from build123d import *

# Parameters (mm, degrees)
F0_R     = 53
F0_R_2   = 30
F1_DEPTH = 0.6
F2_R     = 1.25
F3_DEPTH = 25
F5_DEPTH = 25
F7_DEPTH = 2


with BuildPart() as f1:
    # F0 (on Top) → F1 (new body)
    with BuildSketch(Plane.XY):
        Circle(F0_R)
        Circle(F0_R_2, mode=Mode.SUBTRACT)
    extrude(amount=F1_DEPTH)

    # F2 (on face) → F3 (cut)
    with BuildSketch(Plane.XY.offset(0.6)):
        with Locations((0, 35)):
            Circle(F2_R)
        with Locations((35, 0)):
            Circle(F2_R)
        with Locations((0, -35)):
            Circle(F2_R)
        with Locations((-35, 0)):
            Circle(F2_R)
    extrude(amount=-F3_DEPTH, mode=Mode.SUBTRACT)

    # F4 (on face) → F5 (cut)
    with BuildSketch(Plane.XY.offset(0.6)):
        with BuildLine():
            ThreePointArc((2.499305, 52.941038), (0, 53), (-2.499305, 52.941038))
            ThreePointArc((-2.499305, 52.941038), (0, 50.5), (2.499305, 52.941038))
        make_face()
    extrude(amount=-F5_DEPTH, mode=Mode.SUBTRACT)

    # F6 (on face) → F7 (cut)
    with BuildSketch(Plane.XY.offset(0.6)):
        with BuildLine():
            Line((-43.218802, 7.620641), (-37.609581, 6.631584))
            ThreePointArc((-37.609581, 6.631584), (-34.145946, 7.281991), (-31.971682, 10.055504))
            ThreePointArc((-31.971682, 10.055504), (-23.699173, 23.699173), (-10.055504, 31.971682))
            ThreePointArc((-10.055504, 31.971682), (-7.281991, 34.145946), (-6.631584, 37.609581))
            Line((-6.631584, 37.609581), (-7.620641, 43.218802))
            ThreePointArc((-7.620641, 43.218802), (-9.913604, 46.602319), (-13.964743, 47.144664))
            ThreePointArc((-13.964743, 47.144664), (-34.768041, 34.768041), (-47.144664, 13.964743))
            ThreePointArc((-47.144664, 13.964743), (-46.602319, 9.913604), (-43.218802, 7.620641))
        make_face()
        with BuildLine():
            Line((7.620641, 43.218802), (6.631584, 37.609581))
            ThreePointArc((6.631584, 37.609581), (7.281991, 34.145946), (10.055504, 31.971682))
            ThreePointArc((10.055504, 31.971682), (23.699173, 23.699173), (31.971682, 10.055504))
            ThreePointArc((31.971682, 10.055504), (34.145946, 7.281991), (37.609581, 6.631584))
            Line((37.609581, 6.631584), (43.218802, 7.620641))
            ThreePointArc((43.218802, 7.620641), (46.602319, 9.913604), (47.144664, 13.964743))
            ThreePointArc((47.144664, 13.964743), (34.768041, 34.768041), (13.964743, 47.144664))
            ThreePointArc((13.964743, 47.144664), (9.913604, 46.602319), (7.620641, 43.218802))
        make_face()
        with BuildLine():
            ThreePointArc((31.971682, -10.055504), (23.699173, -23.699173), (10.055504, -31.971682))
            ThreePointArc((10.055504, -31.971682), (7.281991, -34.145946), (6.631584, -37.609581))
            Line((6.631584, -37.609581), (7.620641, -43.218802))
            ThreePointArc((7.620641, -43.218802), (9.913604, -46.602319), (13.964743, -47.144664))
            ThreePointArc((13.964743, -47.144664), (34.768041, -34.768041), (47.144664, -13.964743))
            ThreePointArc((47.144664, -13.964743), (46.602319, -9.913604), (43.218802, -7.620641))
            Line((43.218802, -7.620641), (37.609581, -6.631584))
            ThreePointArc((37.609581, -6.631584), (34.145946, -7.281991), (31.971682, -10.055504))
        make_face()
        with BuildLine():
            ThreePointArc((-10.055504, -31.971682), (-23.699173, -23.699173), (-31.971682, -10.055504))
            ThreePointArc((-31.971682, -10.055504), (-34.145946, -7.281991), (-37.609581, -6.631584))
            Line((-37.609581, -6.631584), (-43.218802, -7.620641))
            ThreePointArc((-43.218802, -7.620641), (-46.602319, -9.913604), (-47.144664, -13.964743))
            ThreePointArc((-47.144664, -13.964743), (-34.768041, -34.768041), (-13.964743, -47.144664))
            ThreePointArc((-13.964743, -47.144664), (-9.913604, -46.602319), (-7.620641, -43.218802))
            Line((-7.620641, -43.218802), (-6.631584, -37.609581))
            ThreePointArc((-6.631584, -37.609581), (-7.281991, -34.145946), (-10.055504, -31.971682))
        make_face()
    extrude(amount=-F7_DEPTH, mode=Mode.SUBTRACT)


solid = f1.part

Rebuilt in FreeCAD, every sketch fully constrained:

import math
import FreeCAD as App
import Part
import Sketcher

V = App.Vector
Q = App.Units.Quantity

doc = App.newDocument("Part")
params = doc.addObject("Spreadsheet::Sheet", "Params")
for row, (alias, value) in enumerate([
    ("sketch1_diameter", "106 mm"),
    ("sketch1_diameter2", "60 mm"),
    ("pad1_length", "0.6 mm"),
    ("sketch2_diameter", "2.5 mm"),
    ("pocket1_length", "25 mm"),
    ("sketch3_radius", "2.5 mm"),
    ("pocket2_length", "25 mm"),
    ("sketch4_radius", "4.999999 mm"),
    ("pocket3_length", "2 mm"),
], start=1):
    params.set(f"A{row}", alias)
    params.set(f"B{row}", "=" + value)
    params.setAlias(f"B{row}", alias)

body = doc.addObject("PartDesign::Body", "Body")

# Sketch on XY plane
sketch1 = doc.addObject("Sketcher::SketchObject", "Sketch")
body.addObject(sketch1)
sketch1.AttachmentSupport = (doc.XY_Plane, [""])
sketch1.MapMode = "FlatFace"
sketch1.addGeometry([
    Part.Circle(V(0, 0, 0), V(0, 0, 1), 53),
    Part.Circle(V(0, 0, 0), V(0, 0, 1), 30),
], False)
sketch1.addConstraint([
    Sketcher.Constraint("Coincident", 0, 3, -1, 1),
    Sketcher.Constraint("Coincident", 1, 3, -1, 1),
    Sketcher.Constraint("Diameter", 0, Q("106 mm")),
    Sketcher.Constraint("Diameter", 1, Q("60 mm")),
])
sketch1.setExpression("Constraints[2]", "Params.sketch1_diameter")
sketch1.setExpression("Constraints[3]", "Params.sketch1_diameter2")
pad1 = doc.addObject("PartDesign::Pad", "Pad")
body.addObject(pad1)
pad1.Profile = sketch1
pad1.setExpression("Length", "Params.pad1_length")

# Sketch on XY plane
sketch2 = doc.addObject("Sketcher::SketchObject", "Sketch001")
body.addObject(sketch2)
sketch2.AttachmentSupport = (doc.XY_Plane, [""])
sketch2.MapMode = "FlatFace"
sketch2.AttachmentOffset = App.Placement(V(0, 0, 0.6), App.Rotation())
sketch2.addGeometry([
    Part.Circle(V(0, 35, 0), V(0, 0, 1), 1.2),
    Part.Circle(V(35, 0, 0), V(0, 0, 1), 1.2),
    Part.Circle(V(0, -35, 0), V(0, 0, 1), 1.2),
    Part.Circle(V(-35, 0, 0), V(0, 0, 1), 1.2),
], False)
sketch2.addConstraint([
    Sketcher.Constraint("Equal", 0, 1),
    Sketcher.Constraint("Equal", 1, 2),
    Sketcher.Constraint("Equal", 2, 3),
    Sketcher.Constraint("Symmetric", 0, 3, 2, 3, -1, 1),
    Sketcher.Constraint("Symmetric", 1, 3, 3, 3, -1, 1),
    Sketcher.Constraint("PointOnObject", 0, 3, -2),
    Sketcher.Constraint("PointOnObject", 1, 3, -1),
    Sketcher.Constraint("Diameter", 0, Q("2.5 mm")),
    Sketcher.Constraint("DistanceY", -1, 1, 0, 3, Q("35 mm")),
    Sketcher.Constraint("DistanceX", -1, 1, 1, 3, Q("35 mm")),
])
sketch2.setExpression("Constraints[7]", "Params.sketch2_diameter")
pocket1 = doc.addObject("PartDesign::Pocket", "Pocket")
body.addObject(pocket1)
pocket1.Profile = sketch2
pocket1.setExpression("Length", "Params.pocket1_length")

# Sketch on XY plane
sketch3 = doc.addObject("Sketcher::SketchObject", "Sketch002")
body.addObject(sketch3)
sketch3.AttachmentSupport = (doc.XY_Plane, [""])
sketch3.MapMode = "FlatFace"
sketch3.AttachmentOffset = App.Placement(V(0, 0, 0.6), App.Rotation())
sketch3.addGeometry([
    Part.ArcOfCircle(Part.Circle(V(0, 0, 0), V(0, 0, 1), 53), math.radians(87.3), math.radians(92.7)),
    Part.ArcOfCircle(Part.Circle(V(0, 53, 0), V(0, 0, 1), 2.5), math.radians(-179), math.radians(-1)),
], False)
sketch3.addConstraint([
    Sketcher.Constraint("Coincident", 0, 1, 1, 2),
    Sketcher.Constraint("Coincident", 1, 1, 0, 2),
    Sketcher.Constraint("Symmetric", 0, 1, 1, 1, -2),
    Sketcher.Constraint("Radius", 1, Q("2.5 mm")),
    Sketcher.Constraint("DistanceY", -1, 1, 1, 3, Q("53 mm")),
    Sketcher.Constraint("Radius", 0, Q("53.000254 mm")),
    Sketcher.Constraint("DistanceY", 0, 3, -1, 1, Q("0.000254 mm")),
])
sketch3.setExpression("Constraints[3]", "Params.sketch3_radius")
pocket2 = doc.addObject("PartDesign::Pocket", "Pocket001")
body.addObject(pocket2)
pocket2.Profile = sketch3
pocket2.setExpression("Length", "Params.pocket2_length")

# Sketch on XY plane
sketch4 = doc.addObject("Sketcher::SketchObject", "Sketch003")
body.addObject(sketch4)
sketch4.AttachmentSupport = (doc.XY_Plane, [""])
sketch4.MapMode = "FlatFace"
sketch4.AttachmentOffset = App.Placement(V(0, 0, 0.6), App.Rotation())
sketch4.addGeometry([
    Part.LineSegment(V(-43.2, 7.6, 0), V(-37.6, 6.6, 0)),  # 0
    Part.ArcOfCircle(Part.Circle(V(-36.7, 11.6, 0), V(0, 0, 1), 5), math.radians(-100), math.radians(-17)),  # 1
    Part.ArcOfCircle(Part.Circle(V(0, 0, 0), V(0, 0, 1), 33.5), math.radians(107), math.radians(163)),  # 2
    Part.ArcOfCircle(Part.Circle(V(-11.6, 36.7, 0), V(0, 0, 1), 5), math.radians(-73), math.radians(10)),  # 3
    Part.LineSegment(V(-6.6, 37.6, 0), V(-7.6, 43.2, 0)),  # 4
    Part.ArcOfCircle(Part.Circle(V(-12.5, 42.4, 0), V(0, 0, 1), 5), math.radians(10), math.radians(106)),  # 5
    Part.ArcOfCircle(Part.Circle(V(0, 0, 0), V(0, 0, 1), 49.2), math.radians(106), math.radians(164)),  # 6
    Part.ArcOfCircle(Part.Circle(V(-42.4, 12.5, 0), V(0, 0, 1), 5), math.radians(164), math.radians(260)),  # 7
    Part.LineSegment(V(7.6, 43.2, 0), V(6.6, 37.6, 0)),  # 8
    Part.ArcOfCircle(Part.Circle(V(11.6, 36.7, 0), V(0, 0, 1), 5), math.radians(170), math.radians(253)),  # 9
    Part.ArcOfCircle(Part.Circle(V(0, 0, 0), V(0, 0, 1), 33.5), math.radians(17), math.radians(73)),  # 10
    Part.ArcOfCircle(Part.Circle(V(36.7, 11.6, 0), V(0, 0, 1), 5), math.radians(-163), math.radians(-80)),  # 11
    Part.LineSegment(V(37.6, 6.6, 0), V(43.2, 7.6, 0)),  # 12
    Part.ArcOfCircle(Part.Circle(V(42.4, 12.5, 0), V(0, 0, 1), 5), math.radians(-80), math.radians(16)),  # 13
    Part.ArcOfCircle(Part.Circle(V(0, 0, 0), V(0, 0, 1), 49.2), math.radians(16), math.radians(74)),  # 14
    Part.ArcOfCircle(Part.Circle(V(12.5, 42.4, 0), V(0, 0, 1), 5), math.radians(74), math.radians(170)),  # 15
    Part.ArcOfCircle(Part.Circle(V(0, 0, 0), V(0, 0, 1), 33.5), math.radians(-73), math.radians(-17)),  # 16
    Part.ArcOfCircle(Part.Circle(V(11.6, -36.7, 0), V(0, 0, 1), 5), math.radians(107), math.radians(190)),  # 17
    Part.LineSegment(V(6.6, -37.6, 0), V(7.6, -43.2, 0)),  # 18
    Part.ArcOfCircle(Part.Circle(V(12.5, -42.4, 0), V(0, 0, 1), 5), math.radians(-170), math.radians(-74)),  # 19
    Part.ArcOfCircle(Part.Circle(V(0, 0, 0), V(0, 0, 1), 49.2), math.radians(-74), math.radians(-16)),  # 20
    Part.ArcOfCircle(Part.Circle(V(42.4, -12.5, 0), V(0, 0, 1), 5), math.radians(-16), math.radians(80)),  # 21
    Part.LineSegment(V(43.2, -7.6, 0), V(37.6, -6.6, 0)),  # 22
    Part.ArcOfCircle(Part.Circle(V(36.7, -11.6, 0), V(0, 0, 1), 5), math.radians(80), math.radians(163)),  # 23
    Part.ArcOfCircle(Part.Circle(V(0, 0, 0), V(0, 0, 1), 33.5), math.radians(-163), math.radians(-107)),  # 24
    Part.ArcOfCircle(Part.Circle(V(-36.7, -11.6, 0), V(0, 0, 1), 5), math.radians(17), math.radians(100)),  # 25
    Part.LineSegment(V(-37.6, -6.6, 0), V(-43.2, -7.6, 0)),  # 26
    Part.ArcOfCircle(Part.Circle(V(-42.4, -12.5, 0), V(0, 0, 1), 5), math.radians(100), math.radians(196)),  # 27
    Part.ArcOfCircle(Part.Circle(V(0, 0, 0), V(0, 0, 1), 49.2), math.radians(-164), math.radians(-106)),  # 28
    Part.ArcOfCircle(Part.Circle(V(-12.5, -42.4, 0), V(0, 0, 1), 5), math.radians(-106), math.radians(-10)),  # 29
    Part.LineSegment(V(-7.6, -43.2, 0), V(-6.6, -37.6, 0)),  # 30
    Part.ArcOfCircle(Part.Circle(V(-11.6, -36.7, 0), V(0, 0, 1), 5), math.radians(-10), math.radians(73)),  # 31
], False)
sketch4.addConstraint([
    Sketcher.Constraint("Tangent", 0, 2, 1, 1),
    Sketcher.Constraint("Tangent", 1, 2, 2, 2),
    Sketcher.Constraint("Tangent", 2, 1, 3, 1),
    Sketcher.Constraint("Tangent", 3, 2, 4, 1),
    Sketcher.Constraint("Tangent", 4, 2, 5, 1),
    Sketcher.Constraint("Tangent", 5, 2, 6, 1),
    Sketcher.Constraint("Tangent", 6, 2, 7, 1),
    Sketcher.Constraint("Tangent", 7, 2, 0, 1),
    Sketcher.Constraint("Tangent", 8, 2, 9, 1),
    Sketcher.Constraint("Tangent", 9, 2, 10, 2),
    Sketcher.Constraint("Tangent", 10, 1, 11, 1),
    Sketcher.Constraint("Tangent", 11, 2, 12, 1),
    Sketcher.Constraint("Tangent", 12, 2, 13, 1),
    Sketcher.Constraint("Tangent", 13, 2, 14, 1),
    Sketcher.Constraint("Tangent", 14, 2, 15, 1),
    Sketcher.Constraint("Tangent", 15, 2, 8, 1),
    Sketcher.Constraint("Tangent", 16, 1, 17, 1),
    Sketcher.Constraint("Tangent", 17, 2, 18, 1),
    Sketcher.Constraint("Tangent", 18, 2, 19, 1),
    Sketcher.Constraint("Tangent", 19, 2, 20, 1),
    Sketcher.Constraint("Tangent", 20, 2, 21, 1),
    Sketcher.Constraint("Tangent", 21, 2, 22, 1),
    Sketcher.Constraint("Tangent", 22, 2, 23, 1),
    Sketcher.Constraint("Tangent", 23, 2, 16, 2),
    Sketcher.Constraint("Tangent", 24, 1, 25, 1),
    Sketcher.Constraint("Tangent", 25, 2, 26, 1),
    Sketcher.Constraint("Tangent", 26, 2, 27, 1),
    Sketcher.Constraint("Tangent", 27, 2, 28, 1),
    Sketcher.Constraint("Tangent", 28, 2, 29, 1),
    Sketcher.Constraint("Tangent", 29, 2, 30, 1),
    Sketcher.Constraint("Tangent", 30, 2, 31, 1),
    Sketcher.Constraint("Tangent", 31, 2, 24, 2),
    Sketcher.Constraint("Coincident", 2, 3, -1, 1),
    Sketcher.Constraint("Coincident", 6, 3, -1, 1),
    Sketcher.Constraint("Coincident", 10, 3, -1, 1),
    Sketcher.Constraint("Coincident", 14, 3, -1, 1),
    Sketcher.Constraint("Coincident", 16, 3, -1, 1),
    Sketcher.Constraint("Coincident", 20, 3, -1, 1),
    Sketcher.Constraint("Coincident", 24, 3, -1, 1),
    Sketcher.Constraint("Coincident", 28, 3, -1, 1),
    Sketcher.Constraint("Equal", 1, 3),
    Sketcher.Constraint("Equal", 3, 5),
    Sketcher.Constraint("Equal", 5, 7),
    Sketcher.Constraint("Equal", 7, 9),
    Sketcher.Constraint("Equal", 2, 10),
    Sketcher.Constraint("Equal", 9, 11),
    Sketcher.Constraint("Equal", 11, 13),
    Sketcher.Constraint("Equal", 6, 14),
    Sketcher.Constraint("Equal", 13, 15),
    Sketcher.Constraint("Equal", 10, 16),
    Sketcher.Constraint("Equal", 15, 17),
    Sketcher.Constraint("Equal", 17, 19),
    Sketcher.Constraint("Equal", 14, 20),
    Sketcher.Constraint("Equal", 19, 21),
    Sketcher.Constraint("Equal", 21, 23),
    Sketcher.Constraint("Equal", 16, 24),
    Sketcher.Constraint("Equal", 23, 25),
    Sketcher.Constraint("Equal", 25, 27),
    Sketcher.Constraint("Equal", 20, 28),
    Sketcher.Constraint("Equal", 27, 29),
    Sketcher.Constraint("Equal", 29, 31),
    Sketcher.Constraint("Symmetric", 3, 2, 17, 2, -1, 1),
    Sketcher.Constraint("Symmetric", 7, 2, 21, 2, -1, 1),
    Sketcher.Constraint("Symmetric", 11, 2, 25, 2, -1, 1),
    Sketcher.Constraint("Symmetric", 15, 2, 29, 2, -1, 1),
    Sketcher.Constraint("Symmetric", 3, 2, 8, 2, -2),
    Sketcher.Constraint("Symmetric", 0, 2, 11, 2, -2),
    Sketcher.Constraint("Perpendicular", 0, 8),
    Sketcher.Constraint("Equal", 0, 4),
    Sketcher.Constraint("Radius", 1, Q("4.999999 mm")),
    Sketcher.Constraint("Angle", 0, Q("-10 deg")),
    Sketcher.Constraint("Radius", 6, Q("49.169439 mm")),
    Sketcher.Constraint("Radius", 2, Q("33.515693 mm")),
    Sketcher.Constraint("DistanceY", -1, 1, 4, 2, Q("43.218802 mm")),
])
sketch4.setExpression("Constraints[69]", "Params.sketch4_radius")
pocket3 = doc.addObject("PartDesign::Pocket", "Pocket002")
body.addObject(pocket3)
pocket3.Profile = sketch4
pocket3.setExpression("Length", "Params.pocket3_length")

doc.recompute()
